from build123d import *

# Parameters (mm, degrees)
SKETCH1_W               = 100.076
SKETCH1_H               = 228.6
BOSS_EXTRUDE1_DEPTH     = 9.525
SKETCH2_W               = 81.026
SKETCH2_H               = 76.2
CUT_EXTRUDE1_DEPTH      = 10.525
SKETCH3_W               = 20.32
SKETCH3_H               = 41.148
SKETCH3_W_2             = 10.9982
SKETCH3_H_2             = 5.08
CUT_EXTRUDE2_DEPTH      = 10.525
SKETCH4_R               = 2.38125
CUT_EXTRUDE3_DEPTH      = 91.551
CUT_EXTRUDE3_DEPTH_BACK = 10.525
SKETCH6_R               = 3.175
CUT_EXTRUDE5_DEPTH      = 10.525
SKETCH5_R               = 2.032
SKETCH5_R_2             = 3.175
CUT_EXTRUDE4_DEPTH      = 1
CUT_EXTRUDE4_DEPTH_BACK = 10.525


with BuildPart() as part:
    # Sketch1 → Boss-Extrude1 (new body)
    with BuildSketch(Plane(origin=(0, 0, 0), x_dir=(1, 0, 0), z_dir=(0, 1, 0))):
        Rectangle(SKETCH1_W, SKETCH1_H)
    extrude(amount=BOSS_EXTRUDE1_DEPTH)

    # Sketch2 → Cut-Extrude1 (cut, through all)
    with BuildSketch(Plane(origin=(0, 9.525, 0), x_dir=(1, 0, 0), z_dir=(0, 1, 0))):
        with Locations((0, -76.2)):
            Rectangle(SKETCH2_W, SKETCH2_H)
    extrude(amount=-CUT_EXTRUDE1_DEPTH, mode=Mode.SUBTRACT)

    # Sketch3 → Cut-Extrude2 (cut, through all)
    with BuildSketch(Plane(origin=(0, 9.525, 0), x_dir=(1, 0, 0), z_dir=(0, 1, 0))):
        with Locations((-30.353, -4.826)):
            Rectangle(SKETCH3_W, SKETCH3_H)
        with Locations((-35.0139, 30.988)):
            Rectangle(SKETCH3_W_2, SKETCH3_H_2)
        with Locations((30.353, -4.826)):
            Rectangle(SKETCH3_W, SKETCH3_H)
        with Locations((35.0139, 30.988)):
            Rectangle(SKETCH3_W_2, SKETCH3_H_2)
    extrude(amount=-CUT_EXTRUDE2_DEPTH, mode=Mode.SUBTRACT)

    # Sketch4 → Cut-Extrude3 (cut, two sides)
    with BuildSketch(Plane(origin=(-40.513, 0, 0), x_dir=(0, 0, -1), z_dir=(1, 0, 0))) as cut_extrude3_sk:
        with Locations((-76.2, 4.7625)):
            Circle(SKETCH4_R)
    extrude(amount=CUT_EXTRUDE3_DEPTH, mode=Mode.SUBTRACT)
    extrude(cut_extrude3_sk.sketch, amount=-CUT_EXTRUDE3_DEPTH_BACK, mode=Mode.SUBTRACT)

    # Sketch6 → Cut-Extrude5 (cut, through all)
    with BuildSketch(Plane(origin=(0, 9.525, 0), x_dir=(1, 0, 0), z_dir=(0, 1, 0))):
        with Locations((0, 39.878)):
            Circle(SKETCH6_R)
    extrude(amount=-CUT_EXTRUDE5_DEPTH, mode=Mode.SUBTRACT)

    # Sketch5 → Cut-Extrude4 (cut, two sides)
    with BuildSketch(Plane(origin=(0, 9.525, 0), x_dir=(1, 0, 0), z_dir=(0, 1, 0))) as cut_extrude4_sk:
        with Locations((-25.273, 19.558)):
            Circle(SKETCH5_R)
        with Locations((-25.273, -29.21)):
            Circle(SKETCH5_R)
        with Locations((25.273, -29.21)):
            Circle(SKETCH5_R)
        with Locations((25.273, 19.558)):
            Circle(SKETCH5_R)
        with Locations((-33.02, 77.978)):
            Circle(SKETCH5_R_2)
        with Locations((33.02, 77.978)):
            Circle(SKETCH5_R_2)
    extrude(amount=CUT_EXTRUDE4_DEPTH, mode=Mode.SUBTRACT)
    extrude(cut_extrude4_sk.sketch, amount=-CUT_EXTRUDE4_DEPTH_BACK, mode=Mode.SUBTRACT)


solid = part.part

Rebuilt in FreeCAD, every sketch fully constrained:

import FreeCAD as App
import Part
import Sketcher
from FreeCAD import Vector
Q = App.Units.Quantity


def add_polygon(sketch, points):
    """Adds a closed chain of lines whose ends are joined by coincident constraints."""
    first, n = sketch.GeometryCount, len(points)
    for a, b in zip(points, points[1:] + points[:1]):
        sketch.addGeometry(Part.LineSegment(App.Vector(*a, 0), App.Vector(*b, 0)), False)
    for i in range(n):
        sketch.addConstraint(Sketcher.Constraint("Coincident", first + i, 2, first + (i + 1) % n, 1))

doc = App.newDocument("Part")
body = doc.addObject("PartDesign::Body", "Body")

# Sketch on XZ plane
sketch1 = body.newObject("Sketcher::SketchObject", "Sketch")
sketch1.AttachmentSupport = (doc.getObject("XZ_Plane"), [""])
sketch1.MapMode = "FlatFace"
add_polygon(sketch1, [(-50.038, -114.3), (-50.038, 114.3), (50.038, 114.3), (50.038, -114.3)])  # lines 0-3
sketch1.addConstraint([
    Sketcher.Constraint("Vertical", 0),
    Sketcher.Constraint("Horizontal", 1),
    Sketcher.Constraint("Vertical", 2),
    Sketcher.Constraint("Horizontal", 3),
    Sketcher.Constraint("Symmetric", 0, 2, 2, 2, -1, 1),
    Sketcher.Constraint("DistanceY", 0, 1, 0, 2, Q("9 in")),
    Sketcher.Constraint("DistanceX", 1, 1, 1, 2, Q("3.94 in")),
])
pad1 = body.newObject("PartDesign::Pad", "Pad")
pad1.Profile = sketch1
pad1.Length = Q("0.375 in")
pad1.Reversed = True

# Sketch on XZ plane
sketch2 = body.newObject("Sketcher::SketchObject", "Sketch001")
sketch2.AttachmentSupport = (doc.getObject("XZ_Plane"), [""])
sketch2.MapMode = "FlatFace"
sketch2.AttachmentOffset = App.Placement(Vector(0, 0, -0.375 * 25.4), App.Rotation())
add_polygon(sketch2, [(-40.513, 38.1), (-40.513, 114.3), (40.513, 114.3), (40.513, 38.1)])  # lines 0-3
sketch2.addConstraint([
    Sketcher.Constraint("Vertical", 0),
    Sketcher.Constraint("Horizontal", 1),
    Sketcher.Constraint("Vertical", 2),
    Sketcher.Constraint("Horizontal", 3),
    Sketcher.Constraint("DistanceY", 0, 1, 0, 2, Q("3 in")),
    Sketcher.Constraint("DistanceX", 1, 1, 1, 2, Q("3.19 in")),
    Sketcher.Constraint("DistanceY", -1, 1, 0, 2, Q("4.5 in")),
    Sketcher.Constraint("DistanceX", 0, 2, -1, 1, Q("1.595 in")),
])
pocket1 = body.newObject("PartDesign::Pocket", "Pocket")
pocket1.Profile = sketch2
pocket1.Type = "ThroughAll"
pocket1.Reversed = True

# Sketch on XZ plane
sketch3 = body.newObject("Sketcher::SketchObject", "Sketch002")
sketch3.AttachmentSupport = (doc.getObject("XZ_Plane"), [""])
sketch3.MapMode = "FlatFace"
sketch3.AttachmentOffset = App.Placement(Vector(0, 0, -0.375 * 25.4), App.Rotation())
add_polygon(sketch3, [(-40.513, -15.748), (-40.513, 25.4), (-20.193, 25.4), (-20.193, -15.748)])  # lines 0-3
add_polygon(sketch3, [(-40.513, -33.528), (-40.513, -28.448), (-29.5148, -28.448), (-29.5148, -33.528)])  # lines 4-7
add_polygon(sketch3, [(20.193, -15.748), (20.193, 25.4), (40.513, 25.4), (40.513, -15.748)])  # lines 8-11
add_polygon(sketch3, [(29.5148, -33.528), (29.5148, -28.448), (40.513, -28.448), (40.513, -33.528)])  # lines 12-15
sketch3.addConstraint([
    Sketcher.Constraint("Vertical", 0),
    Sketcher.Constraint("Horizontal", 1),
    Sketcher.Constraint("Vertical", 2),
    Sketcher.Constraint("Horizontal", 3),
    Sketcher.Constraint("Vertical", 4),
    Sketcher.Constraint("Horizontal", 5),
    Sketcher.Constraint("Vertical", 6),
    Sketcher.Constraint("Horizontal", 7),
    Sketcher.Constraint("Vertical", 8),
    Sketcher.Constraint("Horizontal", 9),
    Sketcher.Constraint("Vertical", 10),
    Sketcher.Constraint("Horizontal", 11),
    Sketcher.Constraint("Vertical", 12),
    Sketcher.Constraint("Horizontal", 13),
    Sketcher.Constraint("Vertical", 14),
    Sketcher.Constraint("Horizontal", 15),
    Sketcher.Constraint("Symmetric", 1, 2, 8, 2, -2),
    Sketcher.Constraint("Symmetric", 3, 2, 10, 2, -2),
    Sketcher.Constraint("Symmetric", 5, 2, 12, 2, -2),
    Sketcher.Constraint("Symmetric", 7, 2, 14, 2, -2),
    Sketcher.Constraint("Vertical", 3, 2, 4, 2),
    Sketcher.Constraint("DistanceX", 1, 1, 1, 2, Q("0.8 in")),
    Sketcher.Constraint("DistanceY", 4, 1, 4, 2, Q("0.2 in")),
    Sketcher.Constraint("DistanceY", -1, 1, 0, 2, Q("1 in")),
    Sketcher.Constraint("DistanceY", 0, 1, 0, 2, Q("1.62 in")),
    Sketcher.Constraint("DistanceY", 4, 2, 3, 2, Q("0.5 in")),
    Sketcher.Constraint("DistanceX", 5, 1, 5, 2, Q("0.433 in")),
    Sketcher.Constraint("DistanceX", 1, 2, 8, 2, Q("1.59 in")),
])
pocket2 = body.newObject("PartDesign::Pocket", "Pocket001")
pocket2.Profile = sketch3
pocket2.Type = "ThroughAll"
pocket2.Reversed = True

# Sketch on YZ plane
sketch4 = body.newObject("Sketcher::SketchObject", "Sketch003")
sketch4.AttachmentSupport = (doc.getObject("YZ_Plane"), [""])
sketch4.MapMode = "FlatFace"
sketch4.AttachmentOffset = App.Placement(Vector(0, 0, -1.595 * 25.4), App.Rotation())
sketch4.addGeometry(Part.Circle(Vector(4.7625, 76.2, 0), Vector(0, 0, 1), 2.38125), False)
sketch4.addConstraint([
    Sketcher.Constraint("Diameter", 0, Q("0.1875 in")),
    Sketcher.Constraint("DistanceY", -1, 1, 0, 3, Q("3 in")),
    Sketcher.Constraint("DistanceX", -1, 1, 0, 3, Q("0.1875 in")),
])
pocket3 = body.newObject("PartDesign::Pocket", "Pocket002")
pocket3.Profile = sketch4
pocket3.Type = "ThroughAll"
pocket3.Midplane = True

# Sketch on XZ plane
sketch5 = body.newObject("Sketcher::SketchObject", "Sketch004")
sketch5.AttachmentSupport = (doc.getObject("XZ_Plane"), [""])
sketch5.MapMode = "FlatFace"
sketch5.AttachmentOffset = App.Placement(Vector(0, 0, -0.375 * 25.4), App.Rotation())
sketch5.addGeometry(Part.Circle(Vector(0, -39.878, 0), Vector(0, 0, 1), 3.175), False)
sketch5.addConstraint([
    Sketcher.Constraint("PointOnObject", 0, 3, -2),
    Sketcher.Constraint("Diameter", 0, Q("0.25 in")),
    Sketcher.Constraint("DistanceY", 0, 3, -1, 1, Q("1.57 in")),
])
pocket4 = body.newObject("PartDesign::Pocket", "Pocket003")
pocket4.Profile = sketch5
pocket4.Type = "ThroughAll"
pocket4.Reversed = True

# Sketch on XZ plane
sketch6 = body.newObject("Sketcher::SketchObject", "Sketch005")
sketch6.AttachmentSupport = (doc.getObject("XZ_Plane"), [""])
sketch6.MapMode = "FlatFace"
sketch6.AttachmentOffset = App.Placement(Vector(0, 0, -0.375 * 25.4), App.Rotation())
sketch6.addGeometry([
    Part.Circle(Vector(-25.273, -19.558, 0), Vector(0, 0, 1), 2.032),  # 0
    Part.Circle(Vector(-25.273, 29.21, 0), Vector(0, 0, 1), 2.032),  # 1
    Part.Circle(Vector(25.273, 29.21, 0), Vector(0, 0, 1), 2.032),  # 2
    Part.Circle(Vector(25.273, -19.558, 0), Vector(0, 0, 1), 2.032),  # 3
    Part.Circle(Vector(-33.02, -77.978, 0), Vector(0, 0, 1), 3.175),  # 4
    Part.Circle(Vector(33.02, -77.978, 0), Vector(0, 0, 1), 3.175),  # 5
], False)
sketch6.addConstraint([
    Sketcher.Constraint("Equal", 0, 1),
    Sketcher.Constraint("Equal", 1, 2),
    Sketcher.Constraint("Equal", 2, 3),
    Sketcher.Constraint("Equal", 4, 5),
    Sketcher.Constraint("Symmetric", 1, 3, 2, 3, -2),
    Sketcher.Constraint("Symmetric", 0, 3, 3, 3, -2),
    Sketcher.Constraint("Symmetric", 4, 3, 5, 3, -2),
    Sketcher.Constraint("Vertical", 0, 3, 1, 3),
    Sketcher.Constraint("Diameter", 0, Q("0.16 in")),
    Sketcher.Constraint("Diameter", 4, Q("0.25 in")),
    Sketcher.Constraint("DistanceX", 4, 3, -1, 1, Q("1.3 in")),
    Sketcher.Constraint("DistanceY", 4, 3, 0, 3, Q("2.3 in")),
    Sketcher.Constraint("DistanceY", 0, 3, -1, 1, Q("0.77 in")),
    Sketcher.Constraint("DistanceY", -1, 1, 1, 3, Q("1.15 in")),
    Sketcher.Constraint("DistanceX", 1, 3, 2, 3, Q("1.99 in")),
])
pocket5 = body.newObject("PartDesign::Pocket", "Pocket004")
pocket5.Profile = sketch6
pocket5.Type = "ThroughAll"
pocket5.Midplane = True

doc.recompute()
